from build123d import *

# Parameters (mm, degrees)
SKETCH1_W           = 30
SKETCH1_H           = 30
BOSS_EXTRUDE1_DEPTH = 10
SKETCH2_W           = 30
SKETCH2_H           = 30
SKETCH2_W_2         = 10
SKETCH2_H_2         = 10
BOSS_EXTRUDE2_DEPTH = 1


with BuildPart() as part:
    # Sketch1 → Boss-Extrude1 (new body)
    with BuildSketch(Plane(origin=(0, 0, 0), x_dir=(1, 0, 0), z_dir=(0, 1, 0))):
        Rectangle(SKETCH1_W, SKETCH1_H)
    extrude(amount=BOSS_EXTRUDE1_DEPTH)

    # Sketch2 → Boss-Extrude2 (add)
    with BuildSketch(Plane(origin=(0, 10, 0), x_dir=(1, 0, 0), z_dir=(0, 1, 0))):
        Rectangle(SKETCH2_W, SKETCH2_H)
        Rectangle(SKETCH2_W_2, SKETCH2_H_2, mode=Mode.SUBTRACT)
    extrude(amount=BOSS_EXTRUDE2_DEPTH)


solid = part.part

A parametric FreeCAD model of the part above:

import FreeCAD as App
import Part
import Sketcher

V = App.Vector
Q = App.Units.Quantity


def add_polygon(sketch, points):
    """Adds a closed chain of lines whose ends are joined by coincident constraints."""
    first, n = sketch.GeometryCount, len(points)
    for a, b in zip(points, points[1:] + points[:1]):
        sketch.addGeometry(Part.LineSegment(App.Vector(*a, 0), App.Vector(*b, 0)), False)
    for i in range(n):
        sketch.addConstraint(Sketcher.Constraint("Coincident", first + i, 2, first + (i + 1) % n, 1))

doc = App.newDocument("Part")
body = doc.addObject("PartDesign::Body", "Body")

# Sketch on XZ plane
sketch1 = body.newObject("Sketcher::SketchObject", "Sketch")
sketch1.AttachmentSupport = (doc.getObject("XZ_Plane"), [""])
sketch1.MapMode = "FlatFace"
add_polygon(sketch1, [(-15, -15), (-15, 15), (15, 15), (15, -15)])  # lines 0-3
sketch1.addConstraint(Sketcher.Constraint("Vertical", 0))
sketch1.addConstraint(Sketcher.Constraint("Horizontal", 1))
sketch1.addConstraint(Sketcher.Constraint("Vertical", 2))
sketch1.addConstraint(Sketcher.Constraint("Horizontal", 3))
sketch1.addConstraint(Sketcher.Constraint("Symmetric", 0, 2, 2, 2, -1, 1))
sketch1.addConstraint(Sketcher.Constraint("Equal", 3, 0))
sketch1.addConstraint(Sketcher.Constraint("DistanceX", 1, 1, 1, 2, Q("30 mm")))
pad1 = body.newObject("PartDesign::Pad", "Pad")
pad1.Profile = sketch1
pad1.Length = 10
pad1.Reversed = True

# Sketch on XZ plane
sketch2 = body.newObject("Sketcher::SketchObject", "Sketch001")
sketch2.AttachmentSupport = (doc.getObject("XZ_Plane"), [""])
sketch2.MapMode = "FlatFace"
sketch2.AttachmentOffset = App.Placement(V(0, 0, -10), App.Rotation())
add_polygon(sketch2, [(-15, -15), (-15, 15), (15, 15), (15, -15)])  # lines 0-3
add_polygon(sketch2, [(5, 5), (-5, 5), (-5, -5), (5, -5)])  # lines 4-7
sketch2.addConstraint(Sketcher.Constraint("Vertical", 0))
sketch2.addConstraint(Sketcher.Constraint("Horizontal", 1))
sketch2.addConstraint(Sketcher.Constraint("Vertical", 2))
sketch2.addConstraint(Sketcher.Constraint("Horizontal", 3))
sketch2.addConstraint(Sketcher.Constraint("Horizontal", 4))
sketch2.addConstraint(Sketcher.Constraint("Vertical", 5))
sketch2.addConstraint(Sketcher.Constraint("Horizontal", 6))
sketch2.addConstraint(Sketcher.Constraint("Vertical", 7))
sketch2.addConstraint(Sketcher.Constraint("Symmetric", 0, 2, 2, 2, -1, 1))
sketch2.addConstraint(Sketcher.Constraint("Symmetric", 4, 2, 6, 2, -1, 1))
sketch2.addConstraint(Sketcher.Constraint("Equal", 3, 0))
sketch2.addConstraint(Sketcher.Constraint("Equal", 6, 5))
sketch2.addConstraint(Sketcher.Constraint("DistanceX", 1, 1, 1, 2, Q("30 mm")))
sketch2.addConstraint(Sketcher.Constraint("DistanceX", 4, 2, 4, 1, Q("10 mm")))
pad2 = body.newObject("PartDesign::Pad", "Pad001")
pad2.Profile = sketch2
pad2.Length = 1
pad2.Reversed = True

doc.recompute()
